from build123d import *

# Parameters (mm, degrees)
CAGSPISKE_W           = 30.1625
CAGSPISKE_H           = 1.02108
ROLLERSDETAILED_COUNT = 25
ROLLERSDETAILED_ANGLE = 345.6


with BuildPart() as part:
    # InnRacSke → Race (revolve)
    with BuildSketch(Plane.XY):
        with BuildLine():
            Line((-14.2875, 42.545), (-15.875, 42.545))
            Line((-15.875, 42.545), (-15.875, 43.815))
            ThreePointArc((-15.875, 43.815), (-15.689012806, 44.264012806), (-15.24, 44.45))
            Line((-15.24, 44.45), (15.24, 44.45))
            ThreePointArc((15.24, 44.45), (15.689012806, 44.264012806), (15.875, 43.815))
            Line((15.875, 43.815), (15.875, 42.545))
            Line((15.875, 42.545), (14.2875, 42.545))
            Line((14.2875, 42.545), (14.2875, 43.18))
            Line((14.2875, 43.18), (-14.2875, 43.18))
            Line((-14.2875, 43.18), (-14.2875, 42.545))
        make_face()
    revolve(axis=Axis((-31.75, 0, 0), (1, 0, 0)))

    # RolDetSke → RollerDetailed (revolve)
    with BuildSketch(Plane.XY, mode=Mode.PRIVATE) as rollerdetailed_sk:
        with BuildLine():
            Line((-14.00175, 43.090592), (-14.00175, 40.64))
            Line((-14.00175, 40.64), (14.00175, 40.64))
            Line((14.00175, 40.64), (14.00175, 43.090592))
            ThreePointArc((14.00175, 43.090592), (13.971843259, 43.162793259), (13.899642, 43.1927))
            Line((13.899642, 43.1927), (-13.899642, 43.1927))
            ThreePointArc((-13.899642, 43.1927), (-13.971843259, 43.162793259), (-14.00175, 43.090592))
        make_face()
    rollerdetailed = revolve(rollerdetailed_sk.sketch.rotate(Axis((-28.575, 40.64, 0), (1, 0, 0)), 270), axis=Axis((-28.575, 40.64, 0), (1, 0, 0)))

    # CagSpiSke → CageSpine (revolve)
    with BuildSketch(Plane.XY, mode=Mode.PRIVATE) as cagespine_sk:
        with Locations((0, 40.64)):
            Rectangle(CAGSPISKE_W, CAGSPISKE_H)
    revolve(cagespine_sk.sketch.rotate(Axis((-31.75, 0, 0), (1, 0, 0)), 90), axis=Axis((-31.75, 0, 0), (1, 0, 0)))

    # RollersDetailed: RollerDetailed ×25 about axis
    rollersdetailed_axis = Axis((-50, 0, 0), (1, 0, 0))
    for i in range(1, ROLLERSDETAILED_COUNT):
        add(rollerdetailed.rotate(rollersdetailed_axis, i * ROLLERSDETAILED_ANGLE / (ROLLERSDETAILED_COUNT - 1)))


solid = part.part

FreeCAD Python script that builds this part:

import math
import FreeCAD as App
import Part
import Sketcher
from FreeCAD import Vector
Q = App.Units.Quantity


def add_polygon(sketch, points):
    """Adds a closed chain of lines whose ends are joined by coincident constraints."""
    first, n = sketch.GeometryCount, len(points)
    for a, b in zip(points, points[1:] + points[:1]):
        sketch.addGeometry(Part.LineSegment(App.Vector(*a, 0), App.Vector(*b, 0)), False)
    for i in range(n):
        sketch.addConstraint(Sketcher.Constraint("Coincident", first + i, 2, first + (i + 1) % n, 1))

doc = App.newDocument("Part")
body = doc.addObject("PartDesign::Body", "Body")

sketch1 = doc.addObject("Sketcher::SketchObject", "Sketch")
body.addObject(sketch1)
sketch1.AttachmentSupport = (doc.XY_Plane, [""])
sketch1.MapMode = "FlatFace"
sketch1.addGeometry(Part.LineSegment(Vector(-15.875, 42.545, 0), Vector(-14.2875, 42.545, 0)), False)
sketch1.addGeometry(Part.LineSegment(Vector(-14.2875, 42.545, 0), Vector(-14.2875, 43.18, 0)), False)
sketch1.addGeometry(Part.LineSegment(Vector(-14.2875, 43.18, 0), Vector(14.2875, 43.18, 0)), False)
sketch1.addGeometry(Part.LineSegment(Vector(14.2875, 43.18, 0), Vector(14.2875, 42.545, 0)), False)
sketch1.addGeometry(Part.LineSegment(Vector(14.2875, 42.545, 0), Vector(15.875, 42.545, 0)), False)
sketch1.addGeometry(Part.LineSegment(Vector(15.875, 42.545, 0), Vector(15.875, 43.815, 0)), False)
sketch1.addGeometry(Part.ArcOfCircle(Part.Circle(Vector(15.24, 43.815, 0), Vector(0, 0, 1), 0.635), math.radians(0), math.radians(90)), False)
sketch1.addGeometry(Part.LineSegment(Vector(15.24, 44.45, 0), Vector(-15.24, 44.45, 0)), False)
sketch1.addGeometry(Part.ArcOfCircle(Part.Circle(Vector(-15.24, 43.815, 0), Vector(0, 0, 1), 0.635), math.radians(90), math.radians(180)), False)
sketch1.addGeometry(Part.LineSegment(Vector(-15.875, 43.815, 0), Vector(-15.875, 42.545, 0)), False)
sketch1.addConstraint(Sketcher.Constraint("Coincident", 0, 2, 1, 1))
sketch1.addConstraint(Sketcher.Constraint("Coincident", 1, 2, 2, 1))
sketch1.addConstraint(Sketcher.Constraint("Coincident", 2, 2, 3, 1))
sketch1.addConstraint(Sketcher.Constraint("Coincident", 3, 2, 4, 1))
sketch1.addConstraint(Sketcher.Constraint("Coincident", 4, 2, 5, 1))
sketch1.addConstraint(Sketcher.Constraint("Tangent", 5, 2, 6, 1))
sketch1.addConstraint(Sketcher.Constraint("Tangent", 6, 2, 7, 1))
sketch1.addConstraint(Sketcher.Constraint("Tangent", 7, 2, 8, 1))
sketch1.addConstraint(Sketcher.Constraint("Tangent", 8, 2, 9, 1))
sketch1.addConstraint(Sketcher.Constraint("Coincident", 9, 2, 0, 1))
sketch1.addConstraint(Sketcher.Constraint("Horizontal", 0))
sketch1.addConstraint(Sketcher.Constraint("Vertical", 1))
sketch1.addConstraint(Sketcher.Constraint("Horizontal", 2))
sketch1.addConstraint(Sketcher.Constraint("Vertical", 3))
sketch1.addConstraint(Sketcher.Constraint("Horizontal", 4))
sketch1.addConstraint(Sketcher.Constraint("Vertical", 5))
sketch1.addConstraint(Sketcher.Constraint("Horizontal", 7))
sketch1.addConstraint(Sketcher.Constraint("Vertical", 9))
sketch1.addConstraint(Sketcher.Constraint("Equal", 6, 8))
sketch1.addConstraint(Sketcher.Constraint("Symmetric", 0, 2, 3, 2, -2))
sketch1.addConstraint(Sketcher.Constraint("Equal", 0, 4))
sketch1.addConstraint(Sketcher.Constraint("DistanceX", 7, 2, 7, 1, Q("1.2 in")))
sketch1.addConstraint(Sketcher.Constraint("Radius", 6, Q("0.025 in")))
sketch1.addConstraint(Sketcher.Constraint("DistanceY", 5, 1, 5, 2, Q("0.05 in")))
sketch1.addConstraint(Sketcher.Constraint("DistanceY", -1, 1, 1, 2, Q("1.7 in")))
sketch1.addConstraint(Sketcher.Constraint("DistanceX", 0, 1, 0, 2, Q("0.0625 in")))
sketch1.addConstraint(Sketcher.Constraint("DistanceY", 1, 1, 1, 2, Q("0.025 in")))
revolution = doc.addObject("PartDesign::Revolution", "Revolution")
body.addObject(revolution)
revolution.Profile = sketch1
revolution.ReferenceAxis = (sketch1, ["H_Axis"])
revolution.Angle = 360

sketch2 = doc.addObject("Sketcher::SketchObject", "Sketch001")
body.addObject(sketch2)
sketch2.AttachmentSupport = (doc.XY_Plane, [""])
sketch2.MapMode = "FlatFace"
sketch2.addGeometry(Part.LineSegment(Vector(-14.00175, 43.090592, 0), Vector(-14.00175, 40.64, 0)), False)
sketch2.addGeometry(Part.LineSegment(Vector(-14.00175, 40.64, 0), Vector(14.00175, 40.64, 0)), False)
sketch2.addGeometry(Part.LineSegment(Vector(14.00175, 40.64, 0), Vector(14.00175, 43.090592, 0)), False)
sketch2.addGeometry(Part.ArcOfCircle(Part.Circle(Vector(13.899642, 43.090592, 0), Vector(0, 0, 1), 0.102108), math.radians(0.000001), math.radians(89.999999)), False)
sketch2.addGeometry(Part.LineSegment(Vector(13.899642, 43.1927, 0), Vector(-13.899642, 43.1927, 0)), False)
sketch2.addGeometry(Part.ArcOfCircle(Part.Circle(Vector(-13.899642, 43.090592, 0), Vector(0, 0, 1), 0.102108), math.radians(90.000001), math.radians(179.999999)), False)
sketch2.addGeometry(Part.LineSegment(Vector(-14.00175, 40.64, 0), Vector(14.00175, 40.64, 0)), True)
sketch2.addConstraint(Sketcher.Constraint("Coincident", 0, 2, 1, 1))
sketch2.addConstraint(Sketcher.Constraint("Coincident", 1, 2, 2, 1))
sketch2.addConstraint(Sketcher.Constraint("Tangent", 2, 2, 3, 1))
sketch2.addConstraint(Sketcher.Constraint("Tangent", 3, 2, 4, 1))
sketch2.addConstraint(Sketcher.Constraint("Tangent", 4, 2, 5, 1))
sketch2.addConstraint(Sketcher.Constraint("Tangent", 5, 2, 0, 1))
sketch2.addConstraint(Sketcher.Constraint("Vertical", 0))
sketch2.addConstraint(Sketcher.Constraint("Horizontal", 1))
sketch2.addConstraint(Sketcher.Constraint("Vertical", 2))
sketch2.addConstraint(Sketcher.Constraint("Horizontal", 4))
sketch2.addConstraint(Sketcher.Constraint("Horizontal", 6))
sketch2.addConstraint(Sketcher.Constraint("Coincident", 6, 1, 0, 2))
sketch2.addConstraint(Sketcher.Constraint("Equal", 3, 5))
sketch2.addConstraint(Sketcher.Constraint("Vertical", 2, 2, 6, 2))
sketch2.addConstraint(Sketcher.Constraint("DistanceY", -1, 1, 0, 2, Q("1.6 in")))
sketch2.addConstraint(Sketcher.Constraint("DistanceX", 1, 1, 1, 2, Q("1.1025 in")))
sketch2.addConstraint(Sketcher.Constraint("Radius", 3, Q("0.102108 mm")))
sketch2.addConstraint(Sketcher.Constraint("DistanceY", -1, 1, 3, 2, Q("1.7005 in")))
sketch2.addConstraint(Sketcher.Constraint("DistanceX", -1, 1, 3, 3, Q("13.899642 mm")))
revolution2 = doc.addObject("PartDesign::Revolution", "Revolution001")
body.addObject(revolution2)
revolution2.Profile = sketch2
revolution2.ReferenceAxis = (sketch2, ["Axis0"])
revolution2.Angle = 360

sketch3 = doc.addObject("Sketcher::SketchObject", "Sketch002")
body.addObject(sketch3)
sketch3.AttachmentSupport = (doc.XY_Plane, [""])
sketch3.MapMode = "FlatFace"
add_polygon(sketch3, [(-15.08125, 41.15054), (-15.08125, 40.12946), (15.08125, 40.12946), (15.08125, 41.15054)])
sketch3.addConstraint(Sketcher.Constraint("Vertical", 0))
sketch3.addConstraint(Sketcher.Constraint("Horizontal", 1))
sketch3.addConstraint(Sketcher.Constraint("Vertical", 2))
sketch3.addConstraint(Sketcher.Constraint("Horizontal", 3))
sketch3.addConstraint(Sketcher.Constraint("DistanceX", 1, 1, 1, 2, Q("1.1875 in")))
sketch3.addConstraint(Sketcher.Constraint("DistanceY", 0, 2, 0, 1, Q("0.0402 in")))
sketch3.addConstraint(Sketcher.Constraint("DistanceX", 0, 2, -1, 1, Q("0.59375 in")))
sketch3.addConstraint(Sketcher.Constraint("DistanceY", -1, 1, 0, 2, Q("1.5799 in")))
revolution3 = doc.addObject("PartDesign::Revolution", "Revolution002")
body.addObject(revolution3)
revolution3.Profile = sketch3
revolution3.ReferenceAxis = (sketch3, ["H_Axis"])
revolution3.Angle = 360
doc.recompute()

polarpattern = doc.addObject("PartDesign::PolarPattern", "PolarPattern")
body.addObject(polarpattern)
polarpattern.Originals = [revolution2]
polarpattern.Axis = (doc.X_Axis, [""])
polarpattern.Angle = 360
polarpattern.Occurrences = 25
body.Tip = polarpattern

doc.recompute()
